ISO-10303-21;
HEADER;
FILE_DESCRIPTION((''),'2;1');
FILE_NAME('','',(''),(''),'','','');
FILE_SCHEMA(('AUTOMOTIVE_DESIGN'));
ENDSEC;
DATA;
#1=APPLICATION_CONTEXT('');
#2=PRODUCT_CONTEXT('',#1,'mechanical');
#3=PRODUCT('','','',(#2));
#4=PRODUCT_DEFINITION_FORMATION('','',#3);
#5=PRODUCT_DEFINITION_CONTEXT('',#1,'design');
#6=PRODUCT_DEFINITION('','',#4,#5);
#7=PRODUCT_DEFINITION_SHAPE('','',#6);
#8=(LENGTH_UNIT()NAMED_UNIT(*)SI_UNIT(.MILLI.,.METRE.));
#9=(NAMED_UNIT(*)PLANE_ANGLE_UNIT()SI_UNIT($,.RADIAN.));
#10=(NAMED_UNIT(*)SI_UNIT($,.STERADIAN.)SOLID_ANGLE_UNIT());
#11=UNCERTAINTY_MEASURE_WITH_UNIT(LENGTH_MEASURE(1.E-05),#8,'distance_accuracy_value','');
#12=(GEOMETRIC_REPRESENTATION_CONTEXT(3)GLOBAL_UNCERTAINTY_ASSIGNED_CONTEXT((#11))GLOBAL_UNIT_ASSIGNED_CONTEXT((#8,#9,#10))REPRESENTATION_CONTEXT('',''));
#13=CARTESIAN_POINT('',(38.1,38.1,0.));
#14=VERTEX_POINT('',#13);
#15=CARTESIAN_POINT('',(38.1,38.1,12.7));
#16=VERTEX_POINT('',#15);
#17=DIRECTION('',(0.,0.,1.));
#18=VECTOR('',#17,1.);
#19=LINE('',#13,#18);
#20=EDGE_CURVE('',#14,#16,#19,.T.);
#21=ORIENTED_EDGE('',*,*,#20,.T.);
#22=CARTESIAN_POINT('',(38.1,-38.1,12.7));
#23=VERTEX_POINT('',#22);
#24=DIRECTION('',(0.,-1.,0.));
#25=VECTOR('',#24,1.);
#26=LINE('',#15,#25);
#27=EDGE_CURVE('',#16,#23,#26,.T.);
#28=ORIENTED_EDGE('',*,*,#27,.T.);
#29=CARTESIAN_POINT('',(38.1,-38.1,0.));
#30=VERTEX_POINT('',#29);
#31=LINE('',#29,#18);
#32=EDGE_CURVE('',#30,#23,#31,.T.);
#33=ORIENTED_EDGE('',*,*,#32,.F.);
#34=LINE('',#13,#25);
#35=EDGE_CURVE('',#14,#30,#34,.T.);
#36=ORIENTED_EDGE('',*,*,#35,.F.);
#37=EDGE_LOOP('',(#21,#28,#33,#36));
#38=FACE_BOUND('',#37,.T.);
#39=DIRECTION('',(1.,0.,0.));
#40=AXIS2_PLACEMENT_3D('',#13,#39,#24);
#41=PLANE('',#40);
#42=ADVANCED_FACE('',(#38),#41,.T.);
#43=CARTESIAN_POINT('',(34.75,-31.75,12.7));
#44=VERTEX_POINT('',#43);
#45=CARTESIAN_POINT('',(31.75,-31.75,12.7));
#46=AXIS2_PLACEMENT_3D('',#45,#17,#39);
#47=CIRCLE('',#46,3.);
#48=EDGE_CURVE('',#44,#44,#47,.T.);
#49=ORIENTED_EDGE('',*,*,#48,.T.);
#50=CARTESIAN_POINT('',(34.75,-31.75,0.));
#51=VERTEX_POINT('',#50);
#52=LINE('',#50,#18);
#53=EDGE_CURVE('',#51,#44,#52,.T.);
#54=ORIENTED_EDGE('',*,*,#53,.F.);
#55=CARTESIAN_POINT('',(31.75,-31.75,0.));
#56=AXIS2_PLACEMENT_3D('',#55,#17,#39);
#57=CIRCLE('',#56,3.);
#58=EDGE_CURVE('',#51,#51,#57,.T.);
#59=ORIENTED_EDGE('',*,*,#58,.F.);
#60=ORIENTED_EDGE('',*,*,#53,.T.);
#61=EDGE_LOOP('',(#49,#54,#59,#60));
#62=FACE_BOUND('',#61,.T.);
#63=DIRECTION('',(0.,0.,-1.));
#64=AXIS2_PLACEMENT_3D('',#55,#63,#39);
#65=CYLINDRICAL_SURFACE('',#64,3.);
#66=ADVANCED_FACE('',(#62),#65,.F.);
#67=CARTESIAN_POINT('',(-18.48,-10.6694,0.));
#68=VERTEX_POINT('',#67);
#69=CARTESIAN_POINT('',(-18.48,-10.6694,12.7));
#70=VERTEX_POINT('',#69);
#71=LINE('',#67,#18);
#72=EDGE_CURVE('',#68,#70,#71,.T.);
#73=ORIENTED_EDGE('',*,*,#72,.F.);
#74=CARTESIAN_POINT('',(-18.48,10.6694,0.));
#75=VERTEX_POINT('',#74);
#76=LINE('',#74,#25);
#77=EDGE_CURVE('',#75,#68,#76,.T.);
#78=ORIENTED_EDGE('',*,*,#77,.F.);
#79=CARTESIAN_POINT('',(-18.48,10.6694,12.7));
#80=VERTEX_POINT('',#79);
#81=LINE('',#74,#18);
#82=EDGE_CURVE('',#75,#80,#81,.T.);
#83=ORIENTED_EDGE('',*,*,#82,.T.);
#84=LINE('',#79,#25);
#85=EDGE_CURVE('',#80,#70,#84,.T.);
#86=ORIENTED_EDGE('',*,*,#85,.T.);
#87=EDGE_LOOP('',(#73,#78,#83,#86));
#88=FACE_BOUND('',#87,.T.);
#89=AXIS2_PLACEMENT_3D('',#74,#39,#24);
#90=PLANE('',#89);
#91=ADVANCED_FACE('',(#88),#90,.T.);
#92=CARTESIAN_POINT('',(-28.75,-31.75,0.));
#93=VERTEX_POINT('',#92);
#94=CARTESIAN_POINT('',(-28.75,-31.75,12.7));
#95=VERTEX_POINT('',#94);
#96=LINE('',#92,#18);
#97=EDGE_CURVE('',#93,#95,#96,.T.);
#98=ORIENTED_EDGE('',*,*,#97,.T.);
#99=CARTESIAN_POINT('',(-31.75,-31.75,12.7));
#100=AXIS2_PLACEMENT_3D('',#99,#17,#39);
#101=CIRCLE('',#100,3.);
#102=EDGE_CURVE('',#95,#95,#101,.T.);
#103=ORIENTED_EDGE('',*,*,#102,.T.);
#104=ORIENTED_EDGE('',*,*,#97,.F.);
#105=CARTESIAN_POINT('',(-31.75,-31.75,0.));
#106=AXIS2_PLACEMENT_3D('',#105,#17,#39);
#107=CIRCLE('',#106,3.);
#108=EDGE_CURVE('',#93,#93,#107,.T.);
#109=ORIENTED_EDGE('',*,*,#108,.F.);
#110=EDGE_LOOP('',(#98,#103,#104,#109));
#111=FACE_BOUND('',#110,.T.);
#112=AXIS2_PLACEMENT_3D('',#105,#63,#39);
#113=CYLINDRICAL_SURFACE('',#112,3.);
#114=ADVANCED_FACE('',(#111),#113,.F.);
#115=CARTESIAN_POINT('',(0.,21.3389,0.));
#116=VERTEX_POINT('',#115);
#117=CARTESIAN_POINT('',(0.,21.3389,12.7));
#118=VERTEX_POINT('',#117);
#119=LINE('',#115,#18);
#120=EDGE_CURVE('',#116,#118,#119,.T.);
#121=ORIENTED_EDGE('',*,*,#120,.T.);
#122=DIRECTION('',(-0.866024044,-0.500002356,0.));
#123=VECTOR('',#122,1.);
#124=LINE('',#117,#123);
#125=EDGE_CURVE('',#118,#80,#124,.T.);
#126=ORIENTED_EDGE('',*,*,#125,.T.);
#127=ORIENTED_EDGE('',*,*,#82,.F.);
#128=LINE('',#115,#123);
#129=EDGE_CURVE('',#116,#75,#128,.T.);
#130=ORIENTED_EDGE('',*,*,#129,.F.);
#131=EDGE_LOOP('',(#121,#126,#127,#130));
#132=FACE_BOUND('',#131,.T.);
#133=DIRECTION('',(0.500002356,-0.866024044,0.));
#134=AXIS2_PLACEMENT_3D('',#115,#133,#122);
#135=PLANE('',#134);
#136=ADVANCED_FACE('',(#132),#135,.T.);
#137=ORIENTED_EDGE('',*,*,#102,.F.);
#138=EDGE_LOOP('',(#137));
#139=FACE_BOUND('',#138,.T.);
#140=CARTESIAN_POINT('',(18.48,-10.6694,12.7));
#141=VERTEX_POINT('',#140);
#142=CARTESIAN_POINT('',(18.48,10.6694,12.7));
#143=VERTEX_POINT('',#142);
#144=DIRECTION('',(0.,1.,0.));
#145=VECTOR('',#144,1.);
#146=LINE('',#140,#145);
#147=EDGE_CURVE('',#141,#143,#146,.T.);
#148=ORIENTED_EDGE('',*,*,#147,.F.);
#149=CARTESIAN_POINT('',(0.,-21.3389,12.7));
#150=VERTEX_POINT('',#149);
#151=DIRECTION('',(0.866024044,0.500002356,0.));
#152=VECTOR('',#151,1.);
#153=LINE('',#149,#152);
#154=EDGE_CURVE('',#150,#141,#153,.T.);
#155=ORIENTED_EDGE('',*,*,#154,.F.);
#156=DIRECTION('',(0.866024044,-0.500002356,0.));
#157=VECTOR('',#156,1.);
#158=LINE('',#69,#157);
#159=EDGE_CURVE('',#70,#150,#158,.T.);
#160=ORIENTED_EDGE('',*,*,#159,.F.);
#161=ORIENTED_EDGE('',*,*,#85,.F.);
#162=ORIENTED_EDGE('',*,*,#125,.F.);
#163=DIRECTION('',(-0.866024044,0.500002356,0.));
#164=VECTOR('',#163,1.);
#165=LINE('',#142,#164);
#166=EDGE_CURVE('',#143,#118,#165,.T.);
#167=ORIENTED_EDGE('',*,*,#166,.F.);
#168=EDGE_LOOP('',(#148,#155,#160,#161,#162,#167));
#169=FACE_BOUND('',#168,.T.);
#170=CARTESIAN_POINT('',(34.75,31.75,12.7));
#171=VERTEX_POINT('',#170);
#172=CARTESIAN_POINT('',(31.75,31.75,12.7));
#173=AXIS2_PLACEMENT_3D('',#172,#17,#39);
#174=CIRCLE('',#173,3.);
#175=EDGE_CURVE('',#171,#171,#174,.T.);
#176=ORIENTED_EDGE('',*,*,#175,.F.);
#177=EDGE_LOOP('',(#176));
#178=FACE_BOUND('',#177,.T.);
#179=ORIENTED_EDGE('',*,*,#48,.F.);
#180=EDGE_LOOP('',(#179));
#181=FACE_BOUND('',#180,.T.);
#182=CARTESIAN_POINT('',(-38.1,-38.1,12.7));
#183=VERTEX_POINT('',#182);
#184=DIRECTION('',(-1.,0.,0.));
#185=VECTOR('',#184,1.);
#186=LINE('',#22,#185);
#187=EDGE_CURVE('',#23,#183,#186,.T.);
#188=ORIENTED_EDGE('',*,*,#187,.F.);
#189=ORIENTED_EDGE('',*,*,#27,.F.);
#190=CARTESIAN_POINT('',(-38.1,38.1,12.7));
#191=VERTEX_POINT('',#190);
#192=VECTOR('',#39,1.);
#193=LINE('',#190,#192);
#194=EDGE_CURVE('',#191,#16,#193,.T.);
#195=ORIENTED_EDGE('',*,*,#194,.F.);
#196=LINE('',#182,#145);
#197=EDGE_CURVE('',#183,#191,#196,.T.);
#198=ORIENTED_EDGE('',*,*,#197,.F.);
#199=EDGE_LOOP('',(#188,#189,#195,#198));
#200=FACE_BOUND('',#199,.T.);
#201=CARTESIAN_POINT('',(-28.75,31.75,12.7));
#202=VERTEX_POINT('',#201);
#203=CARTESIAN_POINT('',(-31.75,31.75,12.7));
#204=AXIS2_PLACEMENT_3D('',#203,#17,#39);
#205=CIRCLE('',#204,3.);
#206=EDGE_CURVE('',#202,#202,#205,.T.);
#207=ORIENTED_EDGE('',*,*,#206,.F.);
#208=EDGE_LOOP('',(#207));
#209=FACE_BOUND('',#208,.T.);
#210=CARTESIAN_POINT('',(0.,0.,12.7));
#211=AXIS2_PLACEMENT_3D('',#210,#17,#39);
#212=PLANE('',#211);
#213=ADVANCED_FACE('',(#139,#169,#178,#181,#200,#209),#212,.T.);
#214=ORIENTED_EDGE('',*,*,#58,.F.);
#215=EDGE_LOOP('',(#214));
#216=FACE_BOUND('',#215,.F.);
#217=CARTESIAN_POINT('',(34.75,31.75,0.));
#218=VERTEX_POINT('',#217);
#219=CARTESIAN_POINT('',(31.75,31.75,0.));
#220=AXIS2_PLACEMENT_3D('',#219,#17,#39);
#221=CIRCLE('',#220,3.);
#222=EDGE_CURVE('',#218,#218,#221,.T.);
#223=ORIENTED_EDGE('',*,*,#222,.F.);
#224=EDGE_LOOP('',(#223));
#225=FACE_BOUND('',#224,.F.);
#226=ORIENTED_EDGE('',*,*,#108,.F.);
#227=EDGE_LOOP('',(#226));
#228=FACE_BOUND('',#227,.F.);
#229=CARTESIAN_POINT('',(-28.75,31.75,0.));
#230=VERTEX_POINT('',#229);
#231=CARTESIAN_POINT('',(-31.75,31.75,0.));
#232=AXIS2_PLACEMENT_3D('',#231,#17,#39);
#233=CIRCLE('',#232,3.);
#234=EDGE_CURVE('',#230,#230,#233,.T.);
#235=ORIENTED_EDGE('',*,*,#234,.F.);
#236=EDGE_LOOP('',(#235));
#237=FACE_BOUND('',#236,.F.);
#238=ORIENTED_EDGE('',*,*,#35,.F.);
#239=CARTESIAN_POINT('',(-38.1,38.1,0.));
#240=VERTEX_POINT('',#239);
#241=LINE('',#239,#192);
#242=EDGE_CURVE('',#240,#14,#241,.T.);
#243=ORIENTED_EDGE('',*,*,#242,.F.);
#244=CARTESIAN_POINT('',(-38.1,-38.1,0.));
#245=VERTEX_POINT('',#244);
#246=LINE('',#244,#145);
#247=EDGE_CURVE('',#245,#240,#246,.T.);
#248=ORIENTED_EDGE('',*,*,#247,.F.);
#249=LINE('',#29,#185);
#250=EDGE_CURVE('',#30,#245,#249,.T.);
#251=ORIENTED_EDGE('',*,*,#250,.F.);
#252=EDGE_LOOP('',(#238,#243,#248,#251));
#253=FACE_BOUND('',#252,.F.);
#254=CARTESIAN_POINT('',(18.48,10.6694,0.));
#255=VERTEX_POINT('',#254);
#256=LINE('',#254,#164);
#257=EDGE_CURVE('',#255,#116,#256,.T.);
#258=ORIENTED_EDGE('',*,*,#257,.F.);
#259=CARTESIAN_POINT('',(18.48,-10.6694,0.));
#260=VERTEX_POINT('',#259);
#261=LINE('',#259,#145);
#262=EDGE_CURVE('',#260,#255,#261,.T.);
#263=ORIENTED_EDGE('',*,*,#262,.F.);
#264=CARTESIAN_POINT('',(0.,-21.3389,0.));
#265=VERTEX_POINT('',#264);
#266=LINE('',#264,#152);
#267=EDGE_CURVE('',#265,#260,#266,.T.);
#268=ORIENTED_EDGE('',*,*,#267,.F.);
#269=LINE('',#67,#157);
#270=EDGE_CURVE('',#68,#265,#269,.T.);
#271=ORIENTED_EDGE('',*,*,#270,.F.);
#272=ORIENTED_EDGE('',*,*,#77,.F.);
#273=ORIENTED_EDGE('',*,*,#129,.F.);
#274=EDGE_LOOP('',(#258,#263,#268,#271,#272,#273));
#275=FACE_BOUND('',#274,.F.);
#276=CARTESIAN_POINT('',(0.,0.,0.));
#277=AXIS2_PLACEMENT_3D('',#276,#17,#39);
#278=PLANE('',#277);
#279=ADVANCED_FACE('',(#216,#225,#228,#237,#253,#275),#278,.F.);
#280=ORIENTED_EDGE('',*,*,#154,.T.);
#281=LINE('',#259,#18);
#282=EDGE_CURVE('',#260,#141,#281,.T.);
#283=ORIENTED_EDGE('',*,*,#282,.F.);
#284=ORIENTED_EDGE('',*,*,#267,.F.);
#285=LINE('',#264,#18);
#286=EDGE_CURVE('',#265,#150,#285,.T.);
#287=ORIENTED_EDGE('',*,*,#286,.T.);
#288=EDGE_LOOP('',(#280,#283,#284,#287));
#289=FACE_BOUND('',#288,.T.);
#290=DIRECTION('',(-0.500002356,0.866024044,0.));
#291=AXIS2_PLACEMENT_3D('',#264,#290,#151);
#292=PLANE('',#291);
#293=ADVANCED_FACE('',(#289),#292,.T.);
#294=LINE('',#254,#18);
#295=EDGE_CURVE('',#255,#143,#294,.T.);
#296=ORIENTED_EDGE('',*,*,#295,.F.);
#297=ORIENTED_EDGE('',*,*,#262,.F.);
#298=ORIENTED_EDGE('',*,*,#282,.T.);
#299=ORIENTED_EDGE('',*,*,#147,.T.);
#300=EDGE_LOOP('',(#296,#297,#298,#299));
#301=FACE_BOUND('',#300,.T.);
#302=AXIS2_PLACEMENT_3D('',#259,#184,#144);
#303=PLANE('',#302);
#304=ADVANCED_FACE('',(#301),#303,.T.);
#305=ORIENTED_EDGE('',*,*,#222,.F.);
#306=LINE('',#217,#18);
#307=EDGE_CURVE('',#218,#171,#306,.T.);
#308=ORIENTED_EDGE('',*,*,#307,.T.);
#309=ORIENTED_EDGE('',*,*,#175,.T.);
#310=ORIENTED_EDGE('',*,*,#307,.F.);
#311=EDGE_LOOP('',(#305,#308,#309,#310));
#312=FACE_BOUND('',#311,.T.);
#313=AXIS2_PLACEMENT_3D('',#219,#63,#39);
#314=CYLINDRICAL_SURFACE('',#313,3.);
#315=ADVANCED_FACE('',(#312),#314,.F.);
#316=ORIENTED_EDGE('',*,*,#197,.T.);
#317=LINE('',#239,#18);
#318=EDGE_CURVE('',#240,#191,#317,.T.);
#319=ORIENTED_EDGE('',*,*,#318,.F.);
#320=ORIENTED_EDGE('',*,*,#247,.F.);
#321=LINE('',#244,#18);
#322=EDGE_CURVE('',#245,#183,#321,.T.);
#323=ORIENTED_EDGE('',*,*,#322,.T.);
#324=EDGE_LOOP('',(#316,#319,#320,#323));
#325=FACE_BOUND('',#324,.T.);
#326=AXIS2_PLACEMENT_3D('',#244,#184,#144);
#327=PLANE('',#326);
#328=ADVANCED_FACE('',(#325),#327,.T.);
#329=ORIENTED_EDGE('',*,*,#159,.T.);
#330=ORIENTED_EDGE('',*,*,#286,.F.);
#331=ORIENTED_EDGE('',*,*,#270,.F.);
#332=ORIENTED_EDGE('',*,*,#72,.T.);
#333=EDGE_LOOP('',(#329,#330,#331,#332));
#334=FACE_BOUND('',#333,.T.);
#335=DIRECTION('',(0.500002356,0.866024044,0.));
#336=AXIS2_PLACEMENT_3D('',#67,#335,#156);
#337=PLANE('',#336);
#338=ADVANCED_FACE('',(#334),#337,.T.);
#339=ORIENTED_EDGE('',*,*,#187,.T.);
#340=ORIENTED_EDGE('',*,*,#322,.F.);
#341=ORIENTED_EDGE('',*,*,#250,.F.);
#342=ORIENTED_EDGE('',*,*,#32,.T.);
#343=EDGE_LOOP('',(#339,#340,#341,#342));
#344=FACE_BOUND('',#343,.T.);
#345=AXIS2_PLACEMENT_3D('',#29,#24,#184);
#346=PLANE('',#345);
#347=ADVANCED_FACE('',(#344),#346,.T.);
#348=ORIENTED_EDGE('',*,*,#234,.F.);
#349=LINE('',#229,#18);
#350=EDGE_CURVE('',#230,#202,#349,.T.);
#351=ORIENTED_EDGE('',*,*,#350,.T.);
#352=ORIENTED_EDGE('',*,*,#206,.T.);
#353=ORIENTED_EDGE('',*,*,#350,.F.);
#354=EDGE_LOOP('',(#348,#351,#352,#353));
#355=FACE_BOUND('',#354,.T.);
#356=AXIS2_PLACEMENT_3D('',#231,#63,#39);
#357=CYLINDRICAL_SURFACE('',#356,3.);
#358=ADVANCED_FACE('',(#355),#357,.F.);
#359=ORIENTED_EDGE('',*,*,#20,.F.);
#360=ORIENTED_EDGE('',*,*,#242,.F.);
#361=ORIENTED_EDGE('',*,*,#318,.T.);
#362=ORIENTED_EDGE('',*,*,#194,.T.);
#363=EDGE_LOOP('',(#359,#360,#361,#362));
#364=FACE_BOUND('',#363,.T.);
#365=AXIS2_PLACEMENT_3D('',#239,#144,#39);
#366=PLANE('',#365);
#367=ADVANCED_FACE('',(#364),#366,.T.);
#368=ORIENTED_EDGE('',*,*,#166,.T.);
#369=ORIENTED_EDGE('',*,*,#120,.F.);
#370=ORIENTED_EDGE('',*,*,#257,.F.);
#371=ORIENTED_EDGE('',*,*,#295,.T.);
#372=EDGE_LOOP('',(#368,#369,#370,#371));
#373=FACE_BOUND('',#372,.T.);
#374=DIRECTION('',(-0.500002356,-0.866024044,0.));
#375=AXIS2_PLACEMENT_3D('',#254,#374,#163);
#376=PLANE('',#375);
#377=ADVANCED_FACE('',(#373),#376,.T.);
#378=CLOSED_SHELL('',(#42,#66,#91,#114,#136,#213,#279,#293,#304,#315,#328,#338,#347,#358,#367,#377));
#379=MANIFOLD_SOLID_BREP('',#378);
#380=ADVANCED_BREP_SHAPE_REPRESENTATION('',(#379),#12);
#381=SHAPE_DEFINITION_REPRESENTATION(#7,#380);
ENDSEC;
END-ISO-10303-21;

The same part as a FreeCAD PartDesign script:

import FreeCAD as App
import Part
import Sketcher

V = App.Vector
Q = App.Units.Quantity

doc = App.newDocument("Part")
body = doc.addObject("PartDesign::Body", "Body")

# Sketch on XY plane
sketch1 = body.newObject("Sketcher::SketchObject", "Sketch")
sketch1.AttachmentSupport = (doc.getObject("XY_Plane"), [""])
sketch1.MapMode = "FlatFace"
sketch1.addGeometry([
    Part.LineSegment(V(-38.1, -38.1, 0), V(38.1, -38.1, 0)),  # 0
    Part.LineSegment(V(38.1, -38.1, 0), V(38.1, 38.1, 0)),  # 1
    Part.LineSegment(V(38.1, 38.1, 0), V(-38.1, 38.1, 0)),  # 2
    Part.LineSegment(V(-38.1, 38.1, 0), V(-38.1, -38.1, 0)),  # 3
    Part.Circle(V(-31.75, -31.75, 0), V(0, 0, 1), 3),  # 4
    Part.Circle(V(31.75, -31.75, 0), V(0, 0, 1), 3),  # 5
    Part.Circle(V(-31.75, 31.75, 0), V(0, 0, 1), 3),  # 6
    Part.LineSegment(V(0, 21.3389, 0), V(18.48, 10.6694, 0)),  # 7
    Part.LineSegment(V(18.48, 10.6694, 0), V(18.48, -10.6694, 0)),  # 8
    Part.LineSegment(V(18.48, -10.6694, 0), V(0, -21.3389, 0)),  # 9
    Part.LineSegment(V(0, -21.3389, 0), V(-18.48, -10.6694, 0)),  # 10
    Part.LineSegment(V(-18.48, -10.6694, 0), V(-18.48, 10.6694, 0)),  # 11
    Part.LineSegment(V(-18.48, 10.6694, 0), V(0, 21.3389, 0)),  # 12
    Part.Circle(V(31.75, 31.75, 0), V(0, 0, 1), 3),  # 13
], False)
sketch1.addConstraint([
    Sketcher.Constraint("Coincident", 0, 2, 1, 1),
    Sketcher.Constraint("Coincident", 1, 2, 2, 1),
    Sketcher.Constraint("Coincident", 2, 2, 3, 1),
    Sketcher.Constraint("Coincident", 3, 2, 0, 1),
    Sketcher.Constraint("Coincident", 7, 2, 8, 1),
    Sketcher.Constraint("Coincident", 8, 2, 9, 1),
    Sketcher.Constraint("Coincident", 9, 2, 10, 1),
    Sketcher.Constraint("Coincident", 10, 2, 11, 1),
    Sketcher.Constraint("Coincident", 11, 2, 12, 1),
    Sketcher.Constraint("Coincident", 12, 2, 7, 1),
    Sketcher.Constraint("Horizontal", 0),
    Sketcher.Constraint("Vertical", 1),
    Sketcher.Constraint("Horizontal", 2),
    Sketcher.Constraint("Vertical", 3),
    Sketcher.Constraint("Vertical", 8),
    Sketcher.Constraint("Vertical", 11),
    Sketcher.Constraint("Equal", 4, 5),
    Sketcher.Constraint("Equal", 5, 6),
    Sketcher.Constraint("Equal", 6, 13),
    Sketcher.Constraint("Symmetric", 5, 3, 6, 3, -1, 1),
    Sketcher.Constraint("Symmetric", 4, 3, 13, 3, -1, 1),
    Sketcher.Constraint("Symmetric", 0, 2, 2, 2, -1, 1),
    Sketcher.Constraint("Symmetric", 7, 2, 10, 2, -1, 1),
    Sketcher.Constraint("Symmetric", 9, 2, 12, 2, -1, 1),
    Sketcher.Constraint("Symmetric", 4, 3, 5, 3, -2),
    Sketcher.Constraint("PointOnObject", 9, 2, -2),
    Sketcher.Constraint("Parallel", 9, 12),
    Sketcher.Constraint("Horizontal", 8, 2, 10, 2),
    Sketcher.Constraint("Equal", 2, 1),
    Sketcher.Constraint("DistanceX", 0, 1, 0, 2, Q("3 in")),
    Sketcher.Constraint("DistanceX", 4, 3, 5, 3, Q("2.5 in")),
    Sketcher.Constraint("DistanceY", 4, 3, 6, 3, Q("2.5 in")),
    Sketcher.Constraint("Diameter", 4, 6.0),
    Sketcher.Constraint("Angle", 7, Q("-30.0002 deg")),
    Sketcher.Constraint("DistanceX", -1, 1, 7, 2, 18.48),
    Sketcher.Constraint("DistanceY", 8, 2, 8, 1, Q("0.8401 in")),
])
pad1 = body.newObject("PartDesign::Pad", "Pad")
pad1.Profile = sketch1
pad1.Length = Q("0.5 in")

doc.recompute()
